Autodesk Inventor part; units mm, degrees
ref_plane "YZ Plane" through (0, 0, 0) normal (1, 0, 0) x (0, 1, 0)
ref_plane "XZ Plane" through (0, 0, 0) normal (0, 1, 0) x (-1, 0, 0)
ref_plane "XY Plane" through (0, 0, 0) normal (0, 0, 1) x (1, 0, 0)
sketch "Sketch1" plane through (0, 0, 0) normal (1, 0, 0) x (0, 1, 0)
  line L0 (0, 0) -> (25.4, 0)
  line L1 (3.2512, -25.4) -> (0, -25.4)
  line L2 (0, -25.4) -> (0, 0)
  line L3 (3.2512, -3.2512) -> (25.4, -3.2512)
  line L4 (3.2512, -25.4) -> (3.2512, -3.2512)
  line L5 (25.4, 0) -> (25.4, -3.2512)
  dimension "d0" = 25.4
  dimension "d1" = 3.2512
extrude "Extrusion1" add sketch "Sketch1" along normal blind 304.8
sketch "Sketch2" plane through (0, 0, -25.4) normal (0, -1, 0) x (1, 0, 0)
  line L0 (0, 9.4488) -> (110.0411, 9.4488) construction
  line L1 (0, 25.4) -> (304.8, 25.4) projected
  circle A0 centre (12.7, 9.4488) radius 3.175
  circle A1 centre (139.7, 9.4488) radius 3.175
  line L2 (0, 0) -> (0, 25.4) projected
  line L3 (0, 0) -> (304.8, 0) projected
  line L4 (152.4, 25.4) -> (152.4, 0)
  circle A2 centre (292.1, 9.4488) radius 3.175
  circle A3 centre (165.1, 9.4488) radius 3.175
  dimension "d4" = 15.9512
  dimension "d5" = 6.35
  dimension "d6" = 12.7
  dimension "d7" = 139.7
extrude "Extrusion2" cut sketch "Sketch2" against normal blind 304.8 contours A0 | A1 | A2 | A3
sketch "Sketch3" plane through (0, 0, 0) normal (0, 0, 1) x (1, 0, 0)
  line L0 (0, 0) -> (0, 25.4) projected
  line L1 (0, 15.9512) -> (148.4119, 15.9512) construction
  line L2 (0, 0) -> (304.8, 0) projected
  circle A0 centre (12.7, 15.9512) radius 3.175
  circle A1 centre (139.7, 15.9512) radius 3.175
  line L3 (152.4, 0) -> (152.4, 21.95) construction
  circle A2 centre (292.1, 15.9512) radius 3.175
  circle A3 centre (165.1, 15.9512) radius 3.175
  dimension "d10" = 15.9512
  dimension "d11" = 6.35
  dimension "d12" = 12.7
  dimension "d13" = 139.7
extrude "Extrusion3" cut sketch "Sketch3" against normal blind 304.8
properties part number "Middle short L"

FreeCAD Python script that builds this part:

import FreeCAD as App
import Part
import Sketcher

V = App.Vector
Q = App.Units.Quantity


def add_polygon(sketch, points):
    """Adds a closed chain of lines whose ends are joined by coincident constraints."""
    first, n = sketch.GeometryCount, len(points)
    for a, b in zip(points, points[1:] + points[:1]):
        sketch.addGeometry(Part.LineSegment(App.Vector(*a, 0), App.Vector(*b, 0)), False)
    for i in range(n):
        sketch.addConstraint(Sketcher.Constraint("Coincident", first + i, 2, first + (i + 1) % n, 1))

doc = App.newDocument("Part")
body = doc.addObject("PartDesign::Body", "Body")

# Sketch on YZ plane
sketch1 = body.newObject("Sketcher::SketchObject", "Sketch")
sketch1.AttachmentSupport = (doc.getObject("YZ_Plane"), [""])
sketch1.MapMode = "FlatFace"
add_polygon(sketch1, [(25.4, 0), (0, 0), (0, -25.4), (3.3, -25.4), (3.3, -3.3), (25.4, -3.3)])  # lines 0-5
sketch1.addConstraint([
    Sketcher.Constraint("Horizontal", 0),
    Sketcher.Constraint("Vertical", 1),
    Sketcher.Constraint("Horizontal", 2),
    Sketcher.Constraint("Vertical", 3),
    Sketcher.Constraint("Horizontal", 4),
    Sketcher.Constraint("Vertical", 5),
    Sketcher.Constraint("Coincident", 0, 2, -1, 1),
    Sketcher.Constraint("Equal", 0, 1),
    Sketcher.Constraint("Equal", 4, 3),
    Sketcher.Constraint("DistanceX", 0, 2, 0, 1, Q("1 in")),
    Sketcher.Constraint("DistanceX", 2, 1, 2, 2, Q("0.128 in")),
])
pad1 = body.newObject("PartDesign::Pad", "Pad")
pad1.Profile = sketch1
pad1.Length = Q("12 in")

# Sketch on XZ plane
sketch2 = body.newObject("Sketcher::SketchObject", "Sketch001")
sketch2.AttachmentSupport = (doc.getObject("XZ_Plane"), [""])
sketch2.MapMode = "FlatFace"
sketch2.addGeometry([
    Part.Circle(V(12.7, -16, 0), V(0, 0, 1), 3.2),
    Part.Circle(V(139.7, -16, 0), V(0, 0, 1), 3.2),
    Part.Circle(V(292.1, -16, 0), V(0, 0, 1), 3.2),
    Part.Circle(V(165.1, -16, 0), V(0, 0, 1), 3.2),
], False)
sketch2.addConstraint([
    Sketcher.Constraint("Equal", 0, 1),
    Sketcher.Constraint("Equal", 1, 2),
    Sketcher.Constraint("Equal", 2, 3),
    Sketcher.Constraint("Horizontal", 0, 3, 1, 3),
    Sketcher.Constraint("Horizontal", 1, 3, 2, 3),
    Sketcher.Constraint("Horizontal", 2, 3, 3, 3),
    Sketcher.Constraint("Diameter", 0, Q("0.25 in")),
    Sketcher.Constraint("DistanceX", -1, 1, 0, 3, Q("0.5 in")),
    Sketcher.Constraint("DistanceX", -1, 1, 1, 3, Q("5.5 in")),
    Sketcher.Constraint("DistanceY", 0, 3, -1, 1, Q("0.628 in")),
    Sketcher.Constraint("DistanceX", 1, 3, 2, 3, Q("6 in")),
    Sketcher.Constraint("DistanceX", 1, 3, 3, 3, Q("1 in")),
])
pocket1 = body.newObject("PartDesign::Pocket", "Pocket")
pocket1.Profile = sketch2
pocket1.Length = Q("12 in")

# Sketch on XY plane
sketch3 = body.newObject("Sketcher::SketchObject", "Sketch002")
sketch3.AttachmentSupport = (doc.getObject("XY_Plane"), [""])
sketch3.MapMode = "FlatFace"
sketch3.addGeometry([
    Part.Circle(V(12.7, 16, 0), V(0, 0, 1), 3.2),
    Part.Circle(V(139.7, 16, 0), V(0, 0, 1), 3.2),
    Part.Circle(V(292.1, 16, 0), V(0, 0, 1), 3.2),
    Part.Circle(V(165.1, 16, 0), V(0, 0, 1), 3.2),
], False)
sketch3.addConstraint([
    Sketcher.Constraint("Equal", 0, 1),
    Sketcher.Constraint("Equal", 1, 2),
    Sketcher.Constraint("Equal", 2, 3),
    Sketcher.Constraint("Horizontal", 0, 3, 1, 3),
    Sketcher.Constraint("Horizontal", 1, 3, 2, 3),
    Sketcher.Constraint("Horizontal", 2, 3, 3, 3),
    Sketcher.Constraint("Diameter", 0, Q("0.25 in")),
    Sketcher.Constraint("DistanceX", -1, 1, 0, 3, Q("0.5 in")),
    Sketcher.Constraint("DistanceX", -1, 1, 1, 3, Q("5.5 in")),
    Sketcher.Constraint("DistanceY", -1, 1, 0, 3, Q("0.628 in")),
    Sketcher.Constraint("DistanceX", 1, 3, 2, 3, Q("6 in")),
    Sketcher.Constraint("DistanceX", 1, 3, 3, 3, Q("1 in")),
])
pocket2 = body.newObject("PartDesign::Pocket", "Pocket001")
pocket2.Profile = sketch3
pocket2.Length = Q("12 in")

doc.recompute()
